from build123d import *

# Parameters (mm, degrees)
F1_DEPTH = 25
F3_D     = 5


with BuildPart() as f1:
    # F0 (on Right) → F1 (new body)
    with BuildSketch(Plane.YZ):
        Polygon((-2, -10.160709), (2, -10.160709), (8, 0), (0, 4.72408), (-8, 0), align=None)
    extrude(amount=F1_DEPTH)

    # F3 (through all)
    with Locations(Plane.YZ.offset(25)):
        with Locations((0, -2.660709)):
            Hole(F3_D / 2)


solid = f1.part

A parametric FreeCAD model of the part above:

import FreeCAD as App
import Part
import Sketcher

V = App.Vector
Q = App.Units.Quantity


def add_polygon(sketch, points):
    """Adds a closed chain of lines whose ends are joined by coincident constraints."""
    first, n = sketch.GeometryCount, len(points)
    for a, b in zip(points, points[1:] + points[:1]):
        sketch.addGeometry(Part.LineSegment(App.Vector(*a, 0), App.Vector(*b, 0)), False)
    for i in range(n):
        sketch.addConstraint(Sketcher.Constraint("Coincident", first + i, 2, first + (i + 1) % n, 1))

doc = App.newDocument("Part")
body = doc.addObject("PartDesign::Body", "Body")

# Sketch on YZ plane
sketch1 = body.newObject("Sketcher::SketchObject", "Sketch")
sketch1.AttachmentSupport = (doc.getObject("YZ_Plane"), [""])
sketch1.MapMode = "FlatFace"
add_polygon(sketch1, [(-2, -10.2), (2, -10.2), (8, 0), (0, 4.7), (-8, 0)])  # lines 0-4
sketch1.addConstraint(Sketcher.Constraint("Horizontal", 0))
sketch1.addConstraint(Sketcher.Constraint("Symmetric", 1, 2, 3, 2, -1, 1))
sketch1.addConstraint(Sketcher.Constraint("PointOnObject", 1, 2, -1))
sketch1.addConstraint(Sketcher.Constraint("PointOnObject", 2, 2, -2))
sketch1.addConstraint(Sketcher.Constraint("Perpendicular", 1, 2))
sketch1.addConstraint(Sketcher.Constraint("Perpendicular", 3, 4))
sketch1.addConstraint(Sketcher.Constraint("DistanceX", 0, 1, 0, 2, Q("4 mm")))
sketch1.addConstraint(Sketcher.Constraint("DistanceX", -1, 1, 1, 2, Q("8 mm")))
sketch1.addConstraint(Sketcher.Constraint("Distance", 1, Q("11.8 mm")))
pad1 = body.newObject("PartDesign::Pad", "Pad")
pad1.Profile = sketch1
pad1.Length = 25

# Sketch on YZ plane
sketch2 = body.newObject("Sketcher::SketchObject", "Sketch001")
sketch2.AttachmentSupport = (doc.getObject("YZ_Plane"), [""])
sketch2.MapMode = "FlatFace"
sketch2.AttachmentOffset = App.Placement(V(0, 0, 25), App.Rotation())
sketch2.addGeometry(Part.Circle(V(0, -2.7, 0), V(0, 0, 1), 2.5), False)
sketch2.addConstraint(Sketcher.Constraint("PointOnObject", 0, 3, -2))
sketch2.addConstraint(Sketcher.Constraint("Diameter", 0, Q("5 mm")))
sketch2.addConstraint(Sketcher.Constraint("DistanceY", 0, 3, -1, 1, Q("2.660709 mm")))
doc.recompute()
hole = body.newObject("PartDesign::Hole", "Hole")
hole.Profile = sketch2
hole.ThreadType = "None"
hole.Diameter = 5
hole.DepthType = "ThroughAll"

doc.recompute()
